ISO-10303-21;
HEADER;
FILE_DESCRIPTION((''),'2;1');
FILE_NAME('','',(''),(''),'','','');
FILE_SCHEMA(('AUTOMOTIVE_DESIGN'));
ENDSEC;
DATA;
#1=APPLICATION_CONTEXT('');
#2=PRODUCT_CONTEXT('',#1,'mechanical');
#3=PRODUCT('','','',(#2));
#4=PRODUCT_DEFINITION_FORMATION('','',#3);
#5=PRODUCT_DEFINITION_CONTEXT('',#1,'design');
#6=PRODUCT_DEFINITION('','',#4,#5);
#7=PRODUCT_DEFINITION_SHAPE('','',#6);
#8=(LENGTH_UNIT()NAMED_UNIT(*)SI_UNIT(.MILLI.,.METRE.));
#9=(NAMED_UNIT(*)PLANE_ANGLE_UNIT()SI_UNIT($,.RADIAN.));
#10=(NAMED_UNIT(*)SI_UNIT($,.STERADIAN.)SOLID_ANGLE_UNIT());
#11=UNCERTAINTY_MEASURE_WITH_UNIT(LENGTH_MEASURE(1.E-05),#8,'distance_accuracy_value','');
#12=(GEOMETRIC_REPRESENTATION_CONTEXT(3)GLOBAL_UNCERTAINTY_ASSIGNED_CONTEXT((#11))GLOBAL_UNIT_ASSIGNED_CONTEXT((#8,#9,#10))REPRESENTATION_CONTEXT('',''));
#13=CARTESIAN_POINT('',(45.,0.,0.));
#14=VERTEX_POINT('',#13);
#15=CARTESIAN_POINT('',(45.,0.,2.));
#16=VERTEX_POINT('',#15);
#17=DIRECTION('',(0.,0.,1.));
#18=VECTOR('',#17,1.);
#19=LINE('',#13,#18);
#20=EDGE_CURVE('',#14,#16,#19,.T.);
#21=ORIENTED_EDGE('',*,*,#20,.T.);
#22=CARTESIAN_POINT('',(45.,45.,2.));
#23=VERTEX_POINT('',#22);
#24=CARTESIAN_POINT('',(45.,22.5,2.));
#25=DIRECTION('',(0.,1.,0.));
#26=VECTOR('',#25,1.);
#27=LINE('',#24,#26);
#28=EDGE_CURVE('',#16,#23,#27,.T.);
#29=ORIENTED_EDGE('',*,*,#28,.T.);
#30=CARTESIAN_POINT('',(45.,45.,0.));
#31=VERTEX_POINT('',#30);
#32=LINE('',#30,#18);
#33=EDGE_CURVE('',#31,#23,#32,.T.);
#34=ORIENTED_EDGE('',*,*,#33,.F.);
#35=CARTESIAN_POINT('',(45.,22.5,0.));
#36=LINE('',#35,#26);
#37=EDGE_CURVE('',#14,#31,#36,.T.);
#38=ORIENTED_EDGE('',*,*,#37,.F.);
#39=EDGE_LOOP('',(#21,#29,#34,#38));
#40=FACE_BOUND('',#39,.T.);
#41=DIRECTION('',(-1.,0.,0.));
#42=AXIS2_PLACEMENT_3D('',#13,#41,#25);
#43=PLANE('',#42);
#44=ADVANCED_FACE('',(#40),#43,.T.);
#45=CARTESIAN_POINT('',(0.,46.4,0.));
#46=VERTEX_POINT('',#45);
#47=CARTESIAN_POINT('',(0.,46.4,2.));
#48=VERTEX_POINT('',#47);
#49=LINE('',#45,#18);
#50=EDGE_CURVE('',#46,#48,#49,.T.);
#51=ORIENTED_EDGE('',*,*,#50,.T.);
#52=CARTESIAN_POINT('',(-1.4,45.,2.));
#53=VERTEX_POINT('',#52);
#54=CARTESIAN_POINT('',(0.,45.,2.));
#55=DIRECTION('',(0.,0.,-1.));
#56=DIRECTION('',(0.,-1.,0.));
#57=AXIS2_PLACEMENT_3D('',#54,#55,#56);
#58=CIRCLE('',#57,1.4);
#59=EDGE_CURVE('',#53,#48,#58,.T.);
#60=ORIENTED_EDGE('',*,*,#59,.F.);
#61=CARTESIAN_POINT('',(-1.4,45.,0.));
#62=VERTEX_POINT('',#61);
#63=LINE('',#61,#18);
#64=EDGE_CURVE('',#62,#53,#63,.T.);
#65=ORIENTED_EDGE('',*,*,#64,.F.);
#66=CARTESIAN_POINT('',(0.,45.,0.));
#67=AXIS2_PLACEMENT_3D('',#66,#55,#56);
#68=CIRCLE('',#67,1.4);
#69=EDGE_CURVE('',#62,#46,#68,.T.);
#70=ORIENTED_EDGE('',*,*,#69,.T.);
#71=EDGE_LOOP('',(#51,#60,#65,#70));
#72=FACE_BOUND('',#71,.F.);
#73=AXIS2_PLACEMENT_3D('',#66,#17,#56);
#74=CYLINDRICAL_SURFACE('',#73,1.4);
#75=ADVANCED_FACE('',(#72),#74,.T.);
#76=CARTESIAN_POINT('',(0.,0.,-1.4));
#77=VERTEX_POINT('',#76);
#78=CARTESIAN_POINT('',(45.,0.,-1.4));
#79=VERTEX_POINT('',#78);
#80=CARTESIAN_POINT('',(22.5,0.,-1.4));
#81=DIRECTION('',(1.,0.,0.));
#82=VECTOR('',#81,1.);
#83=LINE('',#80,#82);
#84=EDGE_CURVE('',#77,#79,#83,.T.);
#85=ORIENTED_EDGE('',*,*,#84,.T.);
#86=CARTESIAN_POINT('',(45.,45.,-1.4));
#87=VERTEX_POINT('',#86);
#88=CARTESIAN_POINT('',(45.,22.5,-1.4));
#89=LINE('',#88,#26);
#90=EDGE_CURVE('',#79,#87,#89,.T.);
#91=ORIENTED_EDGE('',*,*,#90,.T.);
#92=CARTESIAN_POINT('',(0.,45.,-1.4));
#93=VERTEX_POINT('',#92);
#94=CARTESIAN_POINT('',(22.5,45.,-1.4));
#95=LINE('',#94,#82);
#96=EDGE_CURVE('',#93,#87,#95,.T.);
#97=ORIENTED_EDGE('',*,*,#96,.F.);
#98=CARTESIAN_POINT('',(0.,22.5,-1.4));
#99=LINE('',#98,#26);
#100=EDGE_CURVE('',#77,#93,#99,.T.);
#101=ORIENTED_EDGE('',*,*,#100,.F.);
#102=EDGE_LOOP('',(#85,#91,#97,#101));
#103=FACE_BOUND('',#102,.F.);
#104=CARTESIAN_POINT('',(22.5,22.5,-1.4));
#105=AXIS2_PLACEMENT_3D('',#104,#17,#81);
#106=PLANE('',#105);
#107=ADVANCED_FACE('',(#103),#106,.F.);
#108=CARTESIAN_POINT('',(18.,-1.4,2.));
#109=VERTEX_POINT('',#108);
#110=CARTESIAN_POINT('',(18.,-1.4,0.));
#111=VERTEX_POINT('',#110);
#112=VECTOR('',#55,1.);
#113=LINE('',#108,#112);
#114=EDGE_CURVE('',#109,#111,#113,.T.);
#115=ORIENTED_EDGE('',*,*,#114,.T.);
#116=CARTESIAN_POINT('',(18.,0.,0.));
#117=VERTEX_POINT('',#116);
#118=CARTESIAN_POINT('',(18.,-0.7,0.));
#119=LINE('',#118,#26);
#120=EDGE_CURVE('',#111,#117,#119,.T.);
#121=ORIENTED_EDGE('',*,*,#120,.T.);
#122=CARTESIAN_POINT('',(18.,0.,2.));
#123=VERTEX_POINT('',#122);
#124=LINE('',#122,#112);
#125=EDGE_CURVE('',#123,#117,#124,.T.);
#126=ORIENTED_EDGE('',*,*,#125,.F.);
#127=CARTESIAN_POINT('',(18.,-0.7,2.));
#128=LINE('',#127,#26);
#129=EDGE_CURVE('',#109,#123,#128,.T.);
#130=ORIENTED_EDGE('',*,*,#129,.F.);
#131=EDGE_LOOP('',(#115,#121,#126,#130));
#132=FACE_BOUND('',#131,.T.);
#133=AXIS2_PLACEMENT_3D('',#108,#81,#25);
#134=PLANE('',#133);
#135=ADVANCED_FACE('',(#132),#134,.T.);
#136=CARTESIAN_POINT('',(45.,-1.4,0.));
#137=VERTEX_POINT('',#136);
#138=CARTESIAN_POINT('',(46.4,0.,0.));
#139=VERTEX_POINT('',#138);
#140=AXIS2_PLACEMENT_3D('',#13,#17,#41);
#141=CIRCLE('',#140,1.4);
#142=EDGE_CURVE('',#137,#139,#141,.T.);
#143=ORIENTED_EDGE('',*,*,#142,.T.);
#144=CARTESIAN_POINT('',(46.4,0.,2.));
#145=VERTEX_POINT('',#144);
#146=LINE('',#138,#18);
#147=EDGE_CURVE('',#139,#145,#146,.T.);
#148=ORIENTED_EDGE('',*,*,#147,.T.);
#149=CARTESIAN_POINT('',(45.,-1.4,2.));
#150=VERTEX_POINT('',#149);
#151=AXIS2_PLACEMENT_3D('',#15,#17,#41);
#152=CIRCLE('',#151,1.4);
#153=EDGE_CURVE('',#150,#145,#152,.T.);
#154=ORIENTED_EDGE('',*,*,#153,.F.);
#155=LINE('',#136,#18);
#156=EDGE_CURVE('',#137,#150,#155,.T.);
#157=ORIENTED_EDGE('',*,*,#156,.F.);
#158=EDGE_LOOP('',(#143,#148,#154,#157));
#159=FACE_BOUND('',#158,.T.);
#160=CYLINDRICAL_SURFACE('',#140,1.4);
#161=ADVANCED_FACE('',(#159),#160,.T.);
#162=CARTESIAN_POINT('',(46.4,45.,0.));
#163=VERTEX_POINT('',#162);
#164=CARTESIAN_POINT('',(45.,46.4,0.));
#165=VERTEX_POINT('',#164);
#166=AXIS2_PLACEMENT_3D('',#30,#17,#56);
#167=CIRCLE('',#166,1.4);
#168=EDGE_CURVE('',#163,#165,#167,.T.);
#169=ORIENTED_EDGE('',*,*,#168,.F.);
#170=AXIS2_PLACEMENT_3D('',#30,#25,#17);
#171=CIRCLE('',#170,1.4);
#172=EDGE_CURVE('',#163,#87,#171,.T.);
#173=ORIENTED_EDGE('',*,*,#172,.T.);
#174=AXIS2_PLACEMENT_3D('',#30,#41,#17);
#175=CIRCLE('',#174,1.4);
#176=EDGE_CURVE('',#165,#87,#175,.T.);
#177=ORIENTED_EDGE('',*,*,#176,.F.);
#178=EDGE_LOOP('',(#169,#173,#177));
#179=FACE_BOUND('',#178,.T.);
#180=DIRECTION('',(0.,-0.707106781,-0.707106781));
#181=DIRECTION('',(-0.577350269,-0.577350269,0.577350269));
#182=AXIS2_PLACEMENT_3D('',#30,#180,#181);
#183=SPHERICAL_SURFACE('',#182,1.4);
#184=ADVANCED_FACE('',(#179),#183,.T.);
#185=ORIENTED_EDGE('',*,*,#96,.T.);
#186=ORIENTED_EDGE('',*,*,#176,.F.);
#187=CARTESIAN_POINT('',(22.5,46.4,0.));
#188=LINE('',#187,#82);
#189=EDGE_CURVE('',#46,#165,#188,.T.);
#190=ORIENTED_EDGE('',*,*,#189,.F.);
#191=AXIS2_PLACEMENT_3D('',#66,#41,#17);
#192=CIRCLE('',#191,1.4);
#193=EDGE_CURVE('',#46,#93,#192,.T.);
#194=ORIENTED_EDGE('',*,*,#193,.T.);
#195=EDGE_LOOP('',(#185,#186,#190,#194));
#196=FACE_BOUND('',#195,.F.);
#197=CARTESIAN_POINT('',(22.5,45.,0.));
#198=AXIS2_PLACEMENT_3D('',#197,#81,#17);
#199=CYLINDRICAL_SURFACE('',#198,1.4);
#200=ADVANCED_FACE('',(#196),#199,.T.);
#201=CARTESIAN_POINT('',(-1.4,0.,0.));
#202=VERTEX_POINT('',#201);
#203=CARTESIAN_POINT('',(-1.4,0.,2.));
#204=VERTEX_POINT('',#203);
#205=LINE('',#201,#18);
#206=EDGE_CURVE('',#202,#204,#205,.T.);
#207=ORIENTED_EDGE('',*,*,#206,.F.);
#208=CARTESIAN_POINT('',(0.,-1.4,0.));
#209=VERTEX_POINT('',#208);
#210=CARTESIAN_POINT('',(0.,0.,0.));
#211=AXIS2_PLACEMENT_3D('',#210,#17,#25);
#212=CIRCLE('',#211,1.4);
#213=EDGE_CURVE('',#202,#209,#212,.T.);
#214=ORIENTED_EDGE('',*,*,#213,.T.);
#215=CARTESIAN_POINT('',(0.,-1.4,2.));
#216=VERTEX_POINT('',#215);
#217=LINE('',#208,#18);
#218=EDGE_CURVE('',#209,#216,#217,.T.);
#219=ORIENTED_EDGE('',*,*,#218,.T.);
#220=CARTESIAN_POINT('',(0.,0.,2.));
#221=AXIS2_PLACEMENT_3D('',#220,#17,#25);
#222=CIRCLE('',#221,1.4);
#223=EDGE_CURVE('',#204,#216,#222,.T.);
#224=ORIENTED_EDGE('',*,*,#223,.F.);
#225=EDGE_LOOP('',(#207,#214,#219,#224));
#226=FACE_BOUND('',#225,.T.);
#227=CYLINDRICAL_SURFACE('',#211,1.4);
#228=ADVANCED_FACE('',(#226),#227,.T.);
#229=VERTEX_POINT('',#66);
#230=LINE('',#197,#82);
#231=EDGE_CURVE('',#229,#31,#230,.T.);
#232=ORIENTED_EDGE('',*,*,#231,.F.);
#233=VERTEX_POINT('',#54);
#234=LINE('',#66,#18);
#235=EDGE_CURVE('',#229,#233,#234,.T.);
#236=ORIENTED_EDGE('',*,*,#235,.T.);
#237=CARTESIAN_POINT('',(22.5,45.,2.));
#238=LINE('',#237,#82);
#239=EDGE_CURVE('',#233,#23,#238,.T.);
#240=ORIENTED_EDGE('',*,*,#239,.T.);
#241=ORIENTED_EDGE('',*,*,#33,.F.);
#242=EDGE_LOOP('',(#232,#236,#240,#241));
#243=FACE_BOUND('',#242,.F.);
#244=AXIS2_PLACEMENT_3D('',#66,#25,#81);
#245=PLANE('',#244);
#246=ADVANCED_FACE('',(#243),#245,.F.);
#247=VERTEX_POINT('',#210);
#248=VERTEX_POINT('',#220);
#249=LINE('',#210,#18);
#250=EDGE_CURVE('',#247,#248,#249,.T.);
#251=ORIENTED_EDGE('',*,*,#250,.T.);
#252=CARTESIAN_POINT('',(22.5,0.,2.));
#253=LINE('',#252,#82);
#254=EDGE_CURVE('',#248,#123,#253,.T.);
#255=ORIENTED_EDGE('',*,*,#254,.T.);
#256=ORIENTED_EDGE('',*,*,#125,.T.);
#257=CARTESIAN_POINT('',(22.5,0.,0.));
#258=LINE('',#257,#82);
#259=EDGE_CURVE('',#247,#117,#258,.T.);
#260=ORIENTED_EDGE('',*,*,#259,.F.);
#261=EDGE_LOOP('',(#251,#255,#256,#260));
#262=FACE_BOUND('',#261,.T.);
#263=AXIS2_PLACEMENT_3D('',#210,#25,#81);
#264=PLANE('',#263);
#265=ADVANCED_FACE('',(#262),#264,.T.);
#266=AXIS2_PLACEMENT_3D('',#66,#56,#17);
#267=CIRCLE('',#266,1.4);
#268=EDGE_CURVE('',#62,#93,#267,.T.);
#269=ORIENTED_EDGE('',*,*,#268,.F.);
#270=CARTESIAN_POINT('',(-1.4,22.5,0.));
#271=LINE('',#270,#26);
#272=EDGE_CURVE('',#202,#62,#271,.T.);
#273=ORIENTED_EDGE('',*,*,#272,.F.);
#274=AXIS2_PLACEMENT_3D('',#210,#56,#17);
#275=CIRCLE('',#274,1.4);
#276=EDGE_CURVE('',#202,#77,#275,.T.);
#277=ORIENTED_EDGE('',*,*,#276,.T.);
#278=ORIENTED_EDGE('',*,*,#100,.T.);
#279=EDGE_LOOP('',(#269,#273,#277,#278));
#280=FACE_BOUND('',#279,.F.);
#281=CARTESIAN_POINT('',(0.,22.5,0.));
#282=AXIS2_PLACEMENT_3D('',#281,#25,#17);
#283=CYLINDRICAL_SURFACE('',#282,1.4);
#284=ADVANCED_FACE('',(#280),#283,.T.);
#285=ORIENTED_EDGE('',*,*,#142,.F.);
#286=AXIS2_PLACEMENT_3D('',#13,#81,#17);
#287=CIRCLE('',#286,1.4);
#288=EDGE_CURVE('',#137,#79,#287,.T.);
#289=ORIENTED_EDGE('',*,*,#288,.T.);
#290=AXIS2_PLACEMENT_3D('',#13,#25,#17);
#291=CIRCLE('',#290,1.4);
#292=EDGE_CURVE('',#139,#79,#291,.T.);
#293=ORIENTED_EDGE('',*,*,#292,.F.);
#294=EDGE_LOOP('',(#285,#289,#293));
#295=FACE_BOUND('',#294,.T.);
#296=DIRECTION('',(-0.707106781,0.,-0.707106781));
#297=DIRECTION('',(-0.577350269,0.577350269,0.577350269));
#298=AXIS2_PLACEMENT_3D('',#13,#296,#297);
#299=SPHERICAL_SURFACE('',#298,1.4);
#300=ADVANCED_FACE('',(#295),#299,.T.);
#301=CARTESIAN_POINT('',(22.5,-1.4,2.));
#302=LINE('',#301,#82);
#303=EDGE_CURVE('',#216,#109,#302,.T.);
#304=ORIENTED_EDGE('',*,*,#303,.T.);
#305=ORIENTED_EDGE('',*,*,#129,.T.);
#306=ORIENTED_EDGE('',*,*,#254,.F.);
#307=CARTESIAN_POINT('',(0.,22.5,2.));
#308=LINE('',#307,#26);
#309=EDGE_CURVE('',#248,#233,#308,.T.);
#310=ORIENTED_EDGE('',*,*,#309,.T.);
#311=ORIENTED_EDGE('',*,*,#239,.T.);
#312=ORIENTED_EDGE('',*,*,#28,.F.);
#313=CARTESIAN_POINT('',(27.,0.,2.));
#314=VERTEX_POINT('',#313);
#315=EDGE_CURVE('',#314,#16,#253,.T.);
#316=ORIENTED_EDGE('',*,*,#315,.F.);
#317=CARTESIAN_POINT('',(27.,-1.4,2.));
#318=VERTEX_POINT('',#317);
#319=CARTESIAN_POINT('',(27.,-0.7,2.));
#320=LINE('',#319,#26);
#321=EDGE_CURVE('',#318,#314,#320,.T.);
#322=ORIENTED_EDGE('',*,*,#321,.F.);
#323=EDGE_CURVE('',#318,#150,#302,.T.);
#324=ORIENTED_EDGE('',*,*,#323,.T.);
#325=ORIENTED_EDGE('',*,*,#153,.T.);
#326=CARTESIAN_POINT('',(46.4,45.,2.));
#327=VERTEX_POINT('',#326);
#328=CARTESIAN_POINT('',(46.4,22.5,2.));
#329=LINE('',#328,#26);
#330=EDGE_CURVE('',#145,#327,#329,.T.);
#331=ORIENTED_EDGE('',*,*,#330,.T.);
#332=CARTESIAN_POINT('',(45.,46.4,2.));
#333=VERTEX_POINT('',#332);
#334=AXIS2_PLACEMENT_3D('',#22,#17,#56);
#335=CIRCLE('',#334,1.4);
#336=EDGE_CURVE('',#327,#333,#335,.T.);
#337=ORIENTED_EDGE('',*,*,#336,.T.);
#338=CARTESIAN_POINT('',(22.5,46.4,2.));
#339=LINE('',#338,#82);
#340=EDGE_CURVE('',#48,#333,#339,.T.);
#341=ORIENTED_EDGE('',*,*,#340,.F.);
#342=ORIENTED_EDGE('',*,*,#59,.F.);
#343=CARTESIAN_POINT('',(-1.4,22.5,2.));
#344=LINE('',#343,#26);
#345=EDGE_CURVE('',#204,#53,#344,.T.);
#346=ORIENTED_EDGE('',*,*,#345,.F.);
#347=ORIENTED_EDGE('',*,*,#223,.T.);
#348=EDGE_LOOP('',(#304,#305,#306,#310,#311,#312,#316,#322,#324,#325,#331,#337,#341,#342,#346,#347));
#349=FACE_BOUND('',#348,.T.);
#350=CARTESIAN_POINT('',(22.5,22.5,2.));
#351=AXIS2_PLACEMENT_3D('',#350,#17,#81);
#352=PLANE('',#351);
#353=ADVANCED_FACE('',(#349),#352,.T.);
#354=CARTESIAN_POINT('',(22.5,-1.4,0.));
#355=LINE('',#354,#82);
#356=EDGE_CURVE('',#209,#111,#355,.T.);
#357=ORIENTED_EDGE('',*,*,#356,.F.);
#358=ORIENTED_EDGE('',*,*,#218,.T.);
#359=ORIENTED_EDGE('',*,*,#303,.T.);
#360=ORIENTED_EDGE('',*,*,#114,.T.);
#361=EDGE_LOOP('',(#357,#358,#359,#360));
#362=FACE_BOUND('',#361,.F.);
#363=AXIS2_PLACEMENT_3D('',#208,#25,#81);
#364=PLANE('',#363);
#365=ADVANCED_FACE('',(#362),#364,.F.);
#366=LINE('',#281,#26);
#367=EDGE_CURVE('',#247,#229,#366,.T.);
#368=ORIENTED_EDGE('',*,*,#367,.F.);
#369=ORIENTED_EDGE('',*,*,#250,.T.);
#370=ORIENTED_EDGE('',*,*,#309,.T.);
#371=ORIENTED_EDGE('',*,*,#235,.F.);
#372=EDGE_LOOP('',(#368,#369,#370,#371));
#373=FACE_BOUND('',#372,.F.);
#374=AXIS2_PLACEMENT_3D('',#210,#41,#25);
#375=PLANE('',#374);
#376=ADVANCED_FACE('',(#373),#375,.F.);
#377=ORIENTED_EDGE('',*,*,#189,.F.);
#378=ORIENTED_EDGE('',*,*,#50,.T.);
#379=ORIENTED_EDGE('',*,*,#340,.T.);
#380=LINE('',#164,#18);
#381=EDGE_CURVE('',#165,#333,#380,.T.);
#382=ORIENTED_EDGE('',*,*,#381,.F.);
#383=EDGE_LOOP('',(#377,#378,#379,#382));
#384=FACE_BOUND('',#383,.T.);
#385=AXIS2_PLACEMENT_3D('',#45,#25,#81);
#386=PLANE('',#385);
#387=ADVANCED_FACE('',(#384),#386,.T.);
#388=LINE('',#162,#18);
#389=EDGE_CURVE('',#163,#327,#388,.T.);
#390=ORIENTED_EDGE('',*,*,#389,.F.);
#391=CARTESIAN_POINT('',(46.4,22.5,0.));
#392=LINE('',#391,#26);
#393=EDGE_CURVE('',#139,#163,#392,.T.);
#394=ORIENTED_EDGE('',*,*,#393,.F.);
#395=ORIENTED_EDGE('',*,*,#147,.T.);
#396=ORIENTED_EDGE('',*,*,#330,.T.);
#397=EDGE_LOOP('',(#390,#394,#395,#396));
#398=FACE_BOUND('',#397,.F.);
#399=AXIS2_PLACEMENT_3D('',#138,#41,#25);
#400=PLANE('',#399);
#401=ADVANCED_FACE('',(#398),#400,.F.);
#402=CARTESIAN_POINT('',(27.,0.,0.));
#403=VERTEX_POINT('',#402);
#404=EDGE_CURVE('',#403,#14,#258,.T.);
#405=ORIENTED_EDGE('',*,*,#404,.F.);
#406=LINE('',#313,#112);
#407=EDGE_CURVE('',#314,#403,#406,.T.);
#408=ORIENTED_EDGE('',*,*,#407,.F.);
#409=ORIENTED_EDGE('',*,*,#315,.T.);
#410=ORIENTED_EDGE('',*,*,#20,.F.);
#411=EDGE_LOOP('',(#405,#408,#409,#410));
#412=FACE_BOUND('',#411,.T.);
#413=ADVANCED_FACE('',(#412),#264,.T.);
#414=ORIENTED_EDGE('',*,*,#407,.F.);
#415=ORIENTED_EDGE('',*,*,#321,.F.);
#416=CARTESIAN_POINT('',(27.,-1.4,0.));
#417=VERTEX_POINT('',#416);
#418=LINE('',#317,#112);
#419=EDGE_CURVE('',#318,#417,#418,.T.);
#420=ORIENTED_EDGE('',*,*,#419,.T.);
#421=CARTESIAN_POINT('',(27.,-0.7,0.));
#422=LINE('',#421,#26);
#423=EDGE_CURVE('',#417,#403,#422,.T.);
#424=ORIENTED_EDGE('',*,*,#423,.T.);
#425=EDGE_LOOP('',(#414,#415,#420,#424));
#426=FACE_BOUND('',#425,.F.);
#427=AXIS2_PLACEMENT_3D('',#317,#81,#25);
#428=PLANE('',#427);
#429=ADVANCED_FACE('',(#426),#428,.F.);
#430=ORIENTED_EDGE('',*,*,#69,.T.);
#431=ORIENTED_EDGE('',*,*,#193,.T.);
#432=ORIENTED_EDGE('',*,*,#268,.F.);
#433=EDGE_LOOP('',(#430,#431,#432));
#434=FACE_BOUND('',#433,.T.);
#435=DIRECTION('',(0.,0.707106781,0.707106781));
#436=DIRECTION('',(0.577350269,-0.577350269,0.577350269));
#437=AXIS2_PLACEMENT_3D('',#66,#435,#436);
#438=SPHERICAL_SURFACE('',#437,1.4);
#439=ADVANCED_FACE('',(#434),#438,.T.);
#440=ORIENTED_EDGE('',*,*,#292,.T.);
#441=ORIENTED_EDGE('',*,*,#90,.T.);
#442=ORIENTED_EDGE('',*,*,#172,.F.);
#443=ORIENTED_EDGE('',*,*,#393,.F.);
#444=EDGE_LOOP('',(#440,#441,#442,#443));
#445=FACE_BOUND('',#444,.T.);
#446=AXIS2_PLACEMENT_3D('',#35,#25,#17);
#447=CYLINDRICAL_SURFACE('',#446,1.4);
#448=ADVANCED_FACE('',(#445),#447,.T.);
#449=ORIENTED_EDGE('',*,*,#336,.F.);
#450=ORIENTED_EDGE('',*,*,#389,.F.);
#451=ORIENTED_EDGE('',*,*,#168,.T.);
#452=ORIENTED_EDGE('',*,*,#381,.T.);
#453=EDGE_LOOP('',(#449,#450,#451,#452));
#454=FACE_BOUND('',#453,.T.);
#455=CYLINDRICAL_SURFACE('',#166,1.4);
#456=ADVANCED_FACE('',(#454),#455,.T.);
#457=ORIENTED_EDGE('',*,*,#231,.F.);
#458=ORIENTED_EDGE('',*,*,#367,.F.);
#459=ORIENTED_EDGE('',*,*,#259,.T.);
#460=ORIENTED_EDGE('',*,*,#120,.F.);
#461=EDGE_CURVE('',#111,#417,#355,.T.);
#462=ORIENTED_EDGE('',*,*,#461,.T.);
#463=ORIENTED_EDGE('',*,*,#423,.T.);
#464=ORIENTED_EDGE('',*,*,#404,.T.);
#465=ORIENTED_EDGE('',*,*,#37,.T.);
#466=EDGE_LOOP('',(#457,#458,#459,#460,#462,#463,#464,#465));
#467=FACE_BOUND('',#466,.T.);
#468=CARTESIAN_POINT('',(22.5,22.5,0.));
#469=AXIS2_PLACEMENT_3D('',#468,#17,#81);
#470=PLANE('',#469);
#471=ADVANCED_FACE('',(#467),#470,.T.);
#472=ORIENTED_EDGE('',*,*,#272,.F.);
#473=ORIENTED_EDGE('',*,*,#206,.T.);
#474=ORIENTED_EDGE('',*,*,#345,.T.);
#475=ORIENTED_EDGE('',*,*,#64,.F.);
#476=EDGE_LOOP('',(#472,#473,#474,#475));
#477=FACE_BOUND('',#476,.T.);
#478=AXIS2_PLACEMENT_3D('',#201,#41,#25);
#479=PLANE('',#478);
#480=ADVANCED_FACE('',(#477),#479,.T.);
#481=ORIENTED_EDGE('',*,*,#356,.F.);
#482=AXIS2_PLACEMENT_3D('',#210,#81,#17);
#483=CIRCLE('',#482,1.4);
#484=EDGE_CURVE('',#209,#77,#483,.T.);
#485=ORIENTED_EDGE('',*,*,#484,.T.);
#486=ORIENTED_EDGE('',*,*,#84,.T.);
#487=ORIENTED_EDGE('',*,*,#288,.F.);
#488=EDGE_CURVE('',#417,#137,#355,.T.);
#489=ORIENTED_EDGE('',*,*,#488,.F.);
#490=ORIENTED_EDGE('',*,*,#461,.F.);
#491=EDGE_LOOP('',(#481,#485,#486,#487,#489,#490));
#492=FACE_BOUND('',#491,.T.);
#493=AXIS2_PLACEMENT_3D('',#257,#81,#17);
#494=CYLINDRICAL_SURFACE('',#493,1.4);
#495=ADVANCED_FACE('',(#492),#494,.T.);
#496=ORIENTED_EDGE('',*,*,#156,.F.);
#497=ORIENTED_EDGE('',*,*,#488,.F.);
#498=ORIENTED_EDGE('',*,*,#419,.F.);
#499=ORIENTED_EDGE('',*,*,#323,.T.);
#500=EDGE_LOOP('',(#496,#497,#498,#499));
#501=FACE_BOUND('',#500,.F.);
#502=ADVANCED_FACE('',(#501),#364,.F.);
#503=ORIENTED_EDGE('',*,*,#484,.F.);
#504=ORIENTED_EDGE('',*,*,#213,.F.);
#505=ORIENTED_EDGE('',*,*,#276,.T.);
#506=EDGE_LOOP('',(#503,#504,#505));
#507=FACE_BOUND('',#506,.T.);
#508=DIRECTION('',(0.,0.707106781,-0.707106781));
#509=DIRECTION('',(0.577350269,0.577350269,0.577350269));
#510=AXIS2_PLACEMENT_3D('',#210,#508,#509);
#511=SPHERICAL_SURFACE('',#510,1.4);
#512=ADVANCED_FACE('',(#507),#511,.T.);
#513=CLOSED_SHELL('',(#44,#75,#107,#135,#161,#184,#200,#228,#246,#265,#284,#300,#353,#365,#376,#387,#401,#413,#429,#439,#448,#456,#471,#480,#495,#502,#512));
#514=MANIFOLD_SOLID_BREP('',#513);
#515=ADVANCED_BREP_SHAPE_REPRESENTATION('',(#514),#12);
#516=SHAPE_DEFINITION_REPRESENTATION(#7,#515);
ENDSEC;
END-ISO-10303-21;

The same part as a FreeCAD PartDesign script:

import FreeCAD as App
import Part
import Sketcher

V = App.Vector
Q = App.Units.Quantity


def faces_at(feature, points):
    """Names of the faces that lie closest to the given points."""
    faces = feature.Shape.Faces
    near = lambda p: min(range(len(faces)), key=lambda i: faces[i].distToShape(Part.Vertex(*p))[0])
    return sorted({f"Face{near(p) + 1}" for p in points})


def add_polygon(sketch, points):
    """Adds a closed chain of lines whose ends are joined by coincident constraints."""
    first, n = sketch.GeometryCount, len(points)
    for a, b in zip(points, points[1:] + points[:1]):
        sketch.addGeometry(Part.LineSegment(App.Vector(*a, 0), App.Vector(*b, 0)), False)
    for i in range(n):
        sketch.addConstraint(Sketcher.Constraint("Coincident", first + i, 2, first + (i + 1) % n, 1))

doc = App.newDocument("Part")
body = doc.addObject("PartDesign::Body", "Body")

sketch1 = body.newObject("Sketcher::SketchObject", "Sketch")
sketch1.AttachmentSupport = (doc.getObject("XY_Plane"), [""])
sketch1.MapMode = "FlatFace"
add_polygon(sketch1, [(0, 45), (0, 0), (45, 0), (45, 45)])
sketch1.addConstraint(Sketcher.Constraint("Vertical", 0))
sketch1.addConstraint(Sketcher.Constraint("Horizontal", 1))
sketch1.addConstraint(Sketcher.Constraint("Vertical", 2))
sketch1.addConstraint(Sketcher.Constraint("Horizontal", 3))
sketch1.addConstraint(Sketcher.Constraint("Coincident", 0, 2, -1, 1))
sketch1.addConstraint(Sketcher.Constraint("Equal", 3, 0))
sketch1.addConstraint(Sketcher.Constraint("DistanceX", 1, 1, 1, 2, Q("45 mm")))
pad1 = body.newObject("PartDesign::Pad", "Pad")
pad1.Profile = sketch1
pad1.Length = 2
doc.recompute()

thickness = body.newObject("PartDesign::Thickness", "Thickness")
thickness.Base = (pad1, faces_at(pad1, [(22.5, 22.5, 2)]))
thickness.Value = 1.4
thickness.Reversed = False
thickness.Join = "Arc"

sketch2 = body.newObject("Sketcher::SketchObject", "Sketch001")
sketch2.AttachmentSupport = (doc.getObject("XY_Plane"), [""])
sketch2.MapMode = "FlatFace"
sketch2.AttachmentOffset = App.Placement(V(0, 0, 2), App.Rotation())
add_polygon(sketch2, [(18, 0), (18, -1.4), (27, -1.4), (27, 0)])
sketch2.addConstraint(Sketcher.Constraint("Vertical", 0))
sketch2.addConstraint(Sketcher.Constraint("Horizontal", 1))
sketch2.addConstraint(Sketcher.Constraint("Vertical", 2))
sketch2.addConstraint(Sketcher.Constraint("Horizontal", 3))
sketch2.addConstraint(Sketcher.Constraint("PointOnObject", 2, 2, -1))
sketch2.addConstraint(Sketcher.Constraint("DistanceX", 1, 1, 1, 2, Q("9 mm")))
sketch2.addConstraint(Sketcher.Constraint("DistanceY", 0, 2, 0, 1, Q("1.4 mm")))
sketch2.addConstraint(Sketcher.Constraint("DistanceX", -1, 1, 0, 2, Q("18 mm")))
pocket1 = body.newObject("PartDesign::Pocket", "Pocket")
pocket1.Profile = sketch2
pocket1.Length = 2

doc.recompute()
